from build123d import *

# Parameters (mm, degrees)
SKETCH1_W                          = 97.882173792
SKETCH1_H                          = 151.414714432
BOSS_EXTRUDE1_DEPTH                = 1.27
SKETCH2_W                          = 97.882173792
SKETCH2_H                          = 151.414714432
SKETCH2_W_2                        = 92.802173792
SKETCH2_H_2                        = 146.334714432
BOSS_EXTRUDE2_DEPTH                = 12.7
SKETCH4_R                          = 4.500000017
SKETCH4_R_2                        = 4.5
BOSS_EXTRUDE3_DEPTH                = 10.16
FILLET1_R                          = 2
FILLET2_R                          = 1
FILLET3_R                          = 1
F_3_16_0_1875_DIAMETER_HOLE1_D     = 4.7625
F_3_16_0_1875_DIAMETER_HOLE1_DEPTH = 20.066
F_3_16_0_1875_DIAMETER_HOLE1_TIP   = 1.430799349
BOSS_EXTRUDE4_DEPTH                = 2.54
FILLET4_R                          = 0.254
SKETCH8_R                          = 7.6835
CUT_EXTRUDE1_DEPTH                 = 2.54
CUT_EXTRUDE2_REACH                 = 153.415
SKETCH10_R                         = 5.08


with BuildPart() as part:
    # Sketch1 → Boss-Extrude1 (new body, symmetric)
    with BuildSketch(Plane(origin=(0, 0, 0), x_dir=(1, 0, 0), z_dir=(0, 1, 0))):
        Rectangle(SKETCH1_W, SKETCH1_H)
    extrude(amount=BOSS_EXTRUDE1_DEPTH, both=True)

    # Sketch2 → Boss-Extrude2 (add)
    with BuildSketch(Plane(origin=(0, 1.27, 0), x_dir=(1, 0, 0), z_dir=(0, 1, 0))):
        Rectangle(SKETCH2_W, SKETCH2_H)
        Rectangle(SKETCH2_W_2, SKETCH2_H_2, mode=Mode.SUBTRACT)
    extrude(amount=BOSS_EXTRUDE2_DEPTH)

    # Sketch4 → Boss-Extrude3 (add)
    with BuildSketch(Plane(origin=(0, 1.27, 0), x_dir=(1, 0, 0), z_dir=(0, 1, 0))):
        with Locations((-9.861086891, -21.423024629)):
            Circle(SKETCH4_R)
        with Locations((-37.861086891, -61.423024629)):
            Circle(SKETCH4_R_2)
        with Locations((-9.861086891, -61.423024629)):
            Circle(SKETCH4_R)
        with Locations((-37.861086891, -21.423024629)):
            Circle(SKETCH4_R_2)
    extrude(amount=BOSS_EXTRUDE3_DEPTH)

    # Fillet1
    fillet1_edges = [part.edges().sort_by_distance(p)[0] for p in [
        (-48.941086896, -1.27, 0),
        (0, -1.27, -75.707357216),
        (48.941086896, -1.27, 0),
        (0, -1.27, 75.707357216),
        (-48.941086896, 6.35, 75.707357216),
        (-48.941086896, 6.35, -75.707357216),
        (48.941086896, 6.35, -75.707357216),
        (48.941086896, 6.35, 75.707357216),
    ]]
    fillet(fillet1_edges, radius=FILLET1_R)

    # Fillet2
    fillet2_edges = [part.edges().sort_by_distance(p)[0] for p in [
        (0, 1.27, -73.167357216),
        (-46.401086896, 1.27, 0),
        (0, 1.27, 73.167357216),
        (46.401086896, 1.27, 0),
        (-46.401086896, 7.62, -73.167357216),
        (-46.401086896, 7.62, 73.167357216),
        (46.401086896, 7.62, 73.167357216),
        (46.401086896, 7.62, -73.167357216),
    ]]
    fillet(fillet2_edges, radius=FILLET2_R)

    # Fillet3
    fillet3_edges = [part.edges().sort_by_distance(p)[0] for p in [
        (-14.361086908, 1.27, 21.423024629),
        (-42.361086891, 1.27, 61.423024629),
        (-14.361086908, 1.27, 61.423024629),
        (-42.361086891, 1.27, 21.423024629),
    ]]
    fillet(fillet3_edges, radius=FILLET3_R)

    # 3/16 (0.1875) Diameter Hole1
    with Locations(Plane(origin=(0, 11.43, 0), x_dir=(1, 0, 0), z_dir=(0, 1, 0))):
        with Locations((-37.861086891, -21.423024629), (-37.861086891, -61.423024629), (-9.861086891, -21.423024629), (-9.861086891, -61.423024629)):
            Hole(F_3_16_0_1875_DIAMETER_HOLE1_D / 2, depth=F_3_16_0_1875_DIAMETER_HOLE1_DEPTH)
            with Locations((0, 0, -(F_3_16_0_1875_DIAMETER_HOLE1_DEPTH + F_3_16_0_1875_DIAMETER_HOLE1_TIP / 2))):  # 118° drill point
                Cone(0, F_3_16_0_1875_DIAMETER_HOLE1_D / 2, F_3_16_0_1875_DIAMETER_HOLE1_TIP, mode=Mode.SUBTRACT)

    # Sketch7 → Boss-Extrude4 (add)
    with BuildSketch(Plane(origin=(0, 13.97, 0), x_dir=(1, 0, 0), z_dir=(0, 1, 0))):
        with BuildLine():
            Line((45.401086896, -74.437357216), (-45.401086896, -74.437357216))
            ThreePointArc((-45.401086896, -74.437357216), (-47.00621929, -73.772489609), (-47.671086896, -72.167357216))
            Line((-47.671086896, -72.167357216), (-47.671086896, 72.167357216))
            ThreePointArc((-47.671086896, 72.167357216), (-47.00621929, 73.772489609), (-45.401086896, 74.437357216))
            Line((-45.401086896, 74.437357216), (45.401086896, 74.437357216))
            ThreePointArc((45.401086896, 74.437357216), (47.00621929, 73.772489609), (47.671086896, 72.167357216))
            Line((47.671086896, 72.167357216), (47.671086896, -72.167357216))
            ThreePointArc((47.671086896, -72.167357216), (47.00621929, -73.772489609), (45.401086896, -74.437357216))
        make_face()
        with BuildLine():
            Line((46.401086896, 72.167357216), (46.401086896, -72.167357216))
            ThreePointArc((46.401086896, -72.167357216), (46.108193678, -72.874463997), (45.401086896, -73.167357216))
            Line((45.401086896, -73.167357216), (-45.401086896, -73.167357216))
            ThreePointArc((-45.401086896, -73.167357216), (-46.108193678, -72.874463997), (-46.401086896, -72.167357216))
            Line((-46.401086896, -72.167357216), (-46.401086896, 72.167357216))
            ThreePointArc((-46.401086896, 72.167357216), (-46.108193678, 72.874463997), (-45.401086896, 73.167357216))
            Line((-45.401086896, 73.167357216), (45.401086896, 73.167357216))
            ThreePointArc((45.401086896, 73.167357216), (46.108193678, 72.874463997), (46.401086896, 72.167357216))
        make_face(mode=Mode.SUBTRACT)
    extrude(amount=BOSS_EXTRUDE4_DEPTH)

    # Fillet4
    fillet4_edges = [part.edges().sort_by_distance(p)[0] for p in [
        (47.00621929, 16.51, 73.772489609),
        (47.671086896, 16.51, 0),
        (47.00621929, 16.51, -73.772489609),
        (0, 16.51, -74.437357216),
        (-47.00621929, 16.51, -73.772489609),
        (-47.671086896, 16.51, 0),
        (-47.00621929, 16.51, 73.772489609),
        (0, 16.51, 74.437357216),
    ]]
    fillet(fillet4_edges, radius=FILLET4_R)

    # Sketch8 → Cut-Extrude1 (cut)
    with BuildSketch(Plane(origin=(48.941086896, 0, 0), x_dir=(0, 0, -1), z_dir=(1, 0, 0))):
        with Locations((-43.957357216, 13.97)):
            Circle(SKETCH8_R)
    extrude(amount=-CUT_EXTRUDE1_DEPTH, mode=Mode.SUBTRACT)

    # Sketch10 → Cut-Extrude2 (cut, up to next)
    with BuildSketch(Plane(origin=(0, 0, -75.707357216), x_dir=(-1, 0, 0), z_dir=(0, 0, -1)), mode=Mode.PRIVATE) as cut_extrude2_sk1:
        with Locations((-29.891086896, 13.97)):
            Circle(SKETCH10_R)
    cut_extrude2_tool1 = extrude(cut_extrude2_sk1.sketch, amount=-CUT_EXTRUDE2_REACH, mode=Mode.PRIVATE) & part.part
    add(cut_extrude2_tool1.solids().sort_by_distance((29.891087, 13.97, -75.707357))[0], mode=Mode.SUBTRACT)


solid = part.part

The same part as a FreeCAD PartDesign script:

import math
import FreeCAD as App
import Part
import Sketcher
from FreeCAD import Vector
Q = App.Units.Quantity


def edges_at(feature, points):
    """Names of the edges that pass closest to the given points."""
    edges = feature.Shape.Edges
    near = lambda p: min(range(len(edges)), key=lambda i: edges[i].distToShape(Part.Vertex(*p))[0])
    return sorted({f"Edge{near(p) + 1}" for p in points})


def add_polygon(sketch, points):
    """Adds a closed chain of lines whose ends are joined by coincident constraints."""
    first, n = sketch.GeometryCount, len(points)
    for a, b in zip(points, points[1:] + points[:1]):
        sketch.addGeometry(Part.LineSegment(App.Vector(*a, 0), App.Vector(*b, 0)), False)
    for i in range(n):
        sketch.addConstraint(Sketcher.Constraint("Coincident", first + i, 2, first + (i + 1) % n, 1))

doc = App.newDocument("Part")
body = doc.addObject("PartDesign::Body", "Body")

# Sketch on XZ plane
sketch1 = body.newObject("Sketcher::SketchObject", "Sketch")
sketch1.AttachmentSupport = (doc.getObject("XZ_Plane"), [""])
sketch1.MapMode = "FlatFace"
add_polygon(sketch1, [(-48.941087, -75.707357), (-48.941087, 75.707357), (48.941087, 75.707357), (48.941087, -75.707357)])  # lines 0-3
sketch1.addConstraint(Sketcher.Constraint("Vertical", 0))
sketch1.addConstraint(Sketcher.Constraint("Horizontal", 1))
sketch1.addConstraint(Sketcher.Constraint("Vertical", 2))
sketch1.addConstraint(Sketcher.Constraint("Horizontal", 3))
sketch1.addConstraint(Sketcher.Constraint("Symmetric", 0, 2, 2, 2, -1, 1))
sketch1.addConstraint(Sketcher.Constraint("DistanceX", 1, 1, 1, 2, 97.882174))
sketch1.addConstraint(Sketcher.Constraint("DistanceY", 0, 1, 0, 2, 151.414714))
pad1 = body.newObject("PartDesign::Pad", "Pad")
pad1.Profile = sketch1
pad1.Length = Q("0.1 in")
pad1.Midplane = True

# Sketch on XZ plane
sketch2 = body.newObject("Sketcher::SketchObject", "Sketch001")
sketch2.AttachmentSupport = (doc.getObject("XZ_Plane"), [""])
sketch2.MapMode = "FlatFace"
sketch2.AttachmentOffset = App.Placement(Vector(0, 0, -0.05 * 25.4), App.Rotation())
add_polygon(sketch2, [(-48.941087, -75.707357), (-48.941087, 75.707357), (48.941087, 75.707357), (48.941087, -75.707357)])  # lines 0-3
add_polygon(sketch2, [(46.401087, 73.167357), (-46.401087, 73.167357), (-46.401087, -73.167357), (46.401087, -73.167357)])  # lines 4-7
sketch2.addConstraint(Sketcher.Constraint("Vertical", 0))
sketch2.addConstraint(Sketcher.Constraint("Horizontal", 1))
sketch2.addConstraint(Sketcher.Constraint("Vertical", 2))
sketch2.addConstraint(Sketcher.Constraint("Horizontal", 3))
sketch2.addConstraint(Sketcher.Constraint("Horizontal", 4))
sketch2.addConstraint(Sketcher.Constraint("Vertical", 5))
sketch2.addConstraint(Sketcher.Constraint("Horizontal", 6))
sketch2.addConstraint(Sketcher.Constraint("Vertical", 7))
sketch2.addConstraint(Sketcher.Constraint("Symmetric", 0, 2, 2, 2, -1, 1))
sketch2.addConstraint(Sketcher.Constraint("Symmetric", 4, 2, 6, 2, -1, 1))
sketch2.addConstraint(Sketcher.Constraint("DistanceX", 0, 2, 4, 2, Q("0.1 in")))
sketch2.addConstraint(Sketcher.Constraint("DistanceY", 4, 2, 0, 2, Q("0.1 in")))
sketch2.addConstraint(Sketcher.Constraint("DistanceX", 1, 1, 1, 2, 97.882174))
sketch2.addConstraint(Sketcher.Constraint("DistanceY", 0, 1, 0, 2, 151.414714))
pad2 = body.newObject("PartDesign::Pad", "Pad001")
pad2.Profile = sketch2
pad2.Length = Q("0.5 in")
pad2.Reversed = True

# Sketch on XZ plane
sketch3 = body.newObject("Sketcher::SketchObject", "Sketch002")
sketch3.AttachmentSupport = (doc.getObject("XZ_Plane"), [""])
sketch3.MapMode = "FlatFace"
sketch3.AttachmentOffset = App.Placement(Vector(0, 0, -0.05 * 25.4), App.Rotation())
sketch3.addGeometry(Part.Circle(Vector(-9.861087, 21.423025, 0), Vector(0, 0, 1), 4.5), False)
sketch3.addGeometry(Part.Circle(Vector(-37.861087, 61.423025, 0), Vector(0, 0, 1), 4.5), False)
sketch3.addGeometry(Part.Circle(Vector(-9.861087, 61.423025, 0), Vector(0, 0, 1), 4.5), False)
sketch3.addGeometry(Part.Circle(Vector(-37.861087, 21.423025, 0), Vector(0, 0, 1), 4.5), False)
sketch3.addConstraint(Sketcher.Constraint("Equal", 0, 1))
sketch3.addConstraint(Sketcher.Constraint("Equal", 1, 2))
sketch3.addConstraint(Sketcher.Constraint("Equal", 2, 3))
sketch3.addConstraint(Sketcher.Constraint("Horizontal", 1, 3, 2, 3))
sketch3.addConstraint(Sketcher.Constraint("Horizontal", 0, 3, 3, 3))
sketch3.addConstraint(Sketcher.Constraint("Vertical", 0, 3, 2, 3))
sketch3.addConstraint(Sketcher.Constraint("Vertical", 1, 3, 3, 3))
sketch3.addConstraint(Sketcher.Constraint("Diameter", 0, 9.0))
sketch3.addConstraint(Sketcher.Constraint("DistanceX", 1, 3, 0, 3, 28.0))
sketch3.addConstraint(Sketcher.Constraint("DistanceY", 0, 3, 1, 3, 40.0))
sketch3.addConstraint(Sketcher.Constraint("DistanceX", 0, 3, -1, 1, 9.861087))
sketch3.addConstraint(Sketcher.Constraint("DistanceY", -1, 1, 0, 3, 21.423025))
pad3 = body.newObject("PartDesign::Pad", "Pad002")
pad3.Profile = sketch3
pad3.Length = Q("0.4 in")
pad3.Reversed = True
doc.recompute()

fillet = body.newObject("PartDesign::Fillet", "Fillet")
fillet.Base = (pad3, edges_at(pad3, [
    (-48.941, -1.27, 0),
    (0, -1.27, -75.707),
    (48.941, -1.27, 0),
    (0, -1.27, 75.707),
    (-48.941, 6.35, 75.707),
    (-48.941, 6.35, -75.707),
    (48.941, 6.35, -75.707),
    (48.941, 6.35, 75.707),
]))
fillet.Radius = 2
doc.recompute()

fillet2 = body.newObject("PartDesign::Fillet", "Fillet001")
fillet2.Base = (fillet, edges_at(fillet, [
    (0, 1.27, -73.167),
    (-46.401, 1.27, 0),
    (0, 1.27, 73.167),
    (46.401, 1.27, 0),
    (-46.401, 7.62, -73.167),
    (-46.401, 7.62, 73.167),
    (46.401, 7.62, 73.167),
    (46.401, 7.62, -73.167),
]))
fillet2.Radius = 1
doc.recompute()

fillet3 = body.newObject("PartDesign::Fillet", "Fillet002")
fillet3.Base = (fillet2, edges_at(fillet2, [
    (-14.361, 1.27, 21.423),
    (-42.361, 1.27, 61.423),
    (-14.361, 1.27, 61.423),
    (-42.361, 1.27, 21.423),
]))
fillet3.Radius = 1

# Sketch on XZ plane
sketch4 = body.newObject("Sketcher::SketchObject", "Sketch003")
sketch4.AttachmentSupport = (doc.getObject("XZ_Plane"), [""])
sketch4.MapMode = "FlatFace"
sketch4.AttachmentOffset = App.Placement(Vector(0, 0, -0.45 * 25.4), App.Rotation())
sketch4.addGeometry(Part.Circle(Vector(-37.861087, 21.423025, 0), Vector(0, 0, 1), 2.38125), False)
sketch4.addGeometry(Part.Circle(Vector(-37.861087, 61.423025, 0), Vector(0, 0, 1), 2.38125), False)
sketch4.addGeometry(Part.Circle(Vector(-9.861087, 21.423025, 0), Vector(0, 0, 1), 2.38125), False)
sketch4.addGeometry(Part.Circle(Vector(-9.861087, 61.423025, 0), Vector(0, 0, 1), 2.38125), False)
sketch4.addConstraint(Sketcher.Constraint("Equal", 0, 1))
sketch4.addConstraint(Sketcher.Constraint("Equal", 1, 2))
sketch4.addConstraint(Sketcher.Constraint("Equal", 2, 3))
sketch4.addConstraint(Sketcher.Constraint("Horizontal", 0, 3, 2, 3))
sketch4.addConstraint(Sketcher.Constraint("Horizontal", 1, 3, 3, 3))
sketch4.addConstraint(Sketcher.Constraint("Vertical", 0, 3, 1, 3))
sketch4.addConstraint(Sketcher.Constraint("Vertical", 2, 3, 3, 3))
sketch4.addConstraint(Sketcher.Constraint("Diameter", 0, Q("0.1875 in")))
sketch4.addConstraint(Sketcher.Constraint("DistanceY", 0, 3, 1, 3, 40.0))
sketch4.addConstraint(Sketcher.Constraint("DistanceX", 0, 3, 2, 3, 28.0))
sketch4.addConstraint(Sketcher.Constraint("DistanceX", 0, 3, -1, 1, 37.861087))
sketch4.addConstraint(Sketcher.Constraint("DistanceY", -1, 1, 0, 3, 21.423025))
doc.recompute()
hole = body.newObject("PartDesign::Hole", "Hole")
hole.Profile = sketch4
hole.ThreadType = "None"
hole.Diameter = Q("0.1875 in")
hole.DepthType = "Dimension"
hole.Depth = Q("0.79 in")
hole.DrillPoint = "Angled"
hole.DrillPointAngle = 118
hole.Reversed = True

# Sketch on XZ plane
sketch5 = body.newObject("Sketcher::SketchObject", "Sketch004")
sketch5.AttachmentSupport = (doc.getObject("XZ_Plane"), [""])
sketch5.MapMode = "FlatFace"
sketch5.AttachmentOffset = App.Placement(Vector(0, 0, -0.55 * 25.4), App.Rotation())
sketch5.addGeometry(Part.LineSegment(Vector(-45.401087, 74.437357, 0), Vector(45.401087, 74.437357, 0)), False)
sketch5.addGeometry(Part.ArcOfCircle(Part.Circle(Vector(45.401087, 72.167357, 0), Vector(0, 0, 1), 2.27), math.radians(0), math.radians(90)), False)
sketch5.addGeometry(Part.LineSegment(Vector(47.671087, 72.167357, 0), Vector(47.671087, -72.167357, 0)), False)
sketch5.addGeometry(Part.ArcOfCircle(Part.Circle(Vector(45.401087, -72.167357, 0), Vector(0, 0, 1), 2.27), math.radians(-90), math.radians(0)), False)
sketch5.addGeometry(Part.LineSegment(Vector(45.401087, -74.437357, 0), Vector(-45.401087, -74.437357, 0)), False)
sketch5.addGeometry(Part.ArcOfCircle(Part.Circle(Vector(-45.401087, -72.167357, 0), Vector(0, 0, 1), 2.27), math.radians(180), math.radians(270)), False)
sketch5.addGeometry(Part.LineSegment(Vector(-47.671087, -72.167357, 0), Vector(-47.671087, 72.167357, 0)), False)
sketch5.addGeometry(Part.ArcOfCircle(Part.Circle(Vector(-45.401087, 72.167357, 0), Vector(0, 0, 1), 2.27), math.radians(90), math.radians(180)), False)
sketch5.addGeometry(Part.LineSegment(Vector(46.401087, -72.167357, 0), Vector(46.401087, 72.167357, 0)), False)
sketch5.addGeometry(Part.ArcOfCircle(Part.Circle(Vector(45.401087, 72.167357, 0), Vector(0, 0, 1), 1), math.radians(0), math.radians(90)), False)
sketch5.addGeometry(Part.LineSegment(Vector(45.401087, 73.167357, 0), Vector(-45.401087, 73.167357, 0)), False)
sketch5.addGeometry(Part.ArcOfCircle(Part.Circle(Vector(-45.401087, 72.167357, 0), Vector(0, 0, 1), 1), math.radians(90), math.radians(180)), False)
sketch5.addGeometry(Part.LineSegment(Vector(-46.401087, 72.167357, 0), Vector(-46.401087, -72.167357, 0)), False)
sketch5.addGeometry(Part.ArcOfCircle(Part.Circle(Vector(-45.401087, -72.167357, 0), Vector(0, 0, 1), 1), math.radians(180), math.radians(270)), False)
sketch5.addGeometry(Part.LineSegment(Vector(-45.401087, -73.167357, 0), Vector(45.401087, -73.167357, 0)), False)
sketch5.addGeometry(Part.ArcOfCircle(Part.Circle(Vector(45.401087, -72.167357, 0), Vector(0, 0, 1), 1), math.radians(-90), math.radians(0)), False)
sketch5.addConstraint(Sketcher.Constraint("Tangent", 0, 2, 1, 2))
sketch5.addConstraint(Sketcher.Constraint("Tangent", 1, 1, 2, 1))
sketch5.addConstraint(Sketcher.Constraint("Tangent", 2, 2, 3, 2))
sketch5.addConstraint(Sketcher.Constraint("Tangent", 3, 1, 4, 1))
sketch5.addConstraint(Sketcher.Constraint("Tangent", 4, 2, 5, 2))
sketch5.addConstraint(Sketcher.Constraint("Tangent", 5, 1, 6, 1))
sketch5.addConstraint(Sketcher.Constraint("Tangent", 6, 2, 7, 2))
sketch5.addConstraint(Sketcher.Constraint("Tangent", 7, 1, 0, 1))
sketch5.addConstraint(Sketcher.Constraint("Tangent", 8, 2, 9, 1))
sketch5.addConstraint(Sketcher.Constraint("Tangent", 9, 2, 10, 1))
sketch5.addConstraint(Sketcher.Constraint("Tangent", 10, 2, 11, 1))
sketch5.addConstraint(Sketcher.Constraint("Tangent", 11, 2, 12, 1))
sketch5.addConstraint(Sketcher.Constraint("Tangent", 12, 2, 13, 1))
sketch5.addConstraint(Sketcher.Constraint("Tangent", 13, 2, 14, 1))
sketch5.addConstraint(Sketcher.Constraint("Tangent", 14, 2, 15, 1))
sketch5.addConstraint(Sketcher.Constraint("Tangent", 15, 2, 8, 1))
sketch5.addConstraint(Sketcher.Constraint("Horizontal", 0))
sketch5.addConstraint(Sketcher.Constraint("Vertical", 2))
sketch5.addConstraint(Sketcher.Constraint("Horizontal", 4))
sketch5.addConstraint(Sketcher.Constraint("Vertical", 6))
sketch5.addConstraint(Sketcher.Constraint("Vertical", 8))
sketch5.addConstraint(Sketcher.Constraint("Horizontal", 10))
sketch5.addConstraint(Sketcher.Constraint("Vertical", 12))
sketch5.addConstraint(Sketcher.Constraint("Horizontal", 14))
sketch5.addConstraint(Sketcher.Constraint("Coincident", 9, 3, 1, 3))
sketch5.addConstraint(Sketcher.Constraint("Coincident", 11, 3, 7, 3))
sketch5.addConstraint(Sketcher.Constraint("Coincident", 13, 3, 5, 3))
sketch5.addConstraint(Sketcher.Constraint("Equal", 1, 3))
sketch5.addConstraint(Sketcher.Constraint("Equal", 3, 5))
sketch5.addConstraint(Sketcher.Constraint("Equal", 5, 7))
sketch5.addConstraint(Sketcher.Constraint("Equal", 13, 15))
sketch5.addConstraint(Sketcher.Constraint("Symmetric", 1, 3, 5, 3, -1, 1))
sketch5.addConstraint(Sketcher.Constraint("Radius", 1, 2.27))
sketch5.addConstraint(Sketcher.Constraint("Radius", 9, 1.0))
sketch5.addConstraint(Sketcher.Constraint("DistanceX", 0, 1, 0, 2, 90.802174))
sketch5.addConstraint(Sketcher.Constraint("DistanceY", 2, 2, 2, 1, 144.334714))
pad4 = body.newObject("PartDesign::Pad", "Pad003")
pad4.Profile = sketch5
pad4.Length = Q("0.1 in")
pad4.Reversed = True
doc.recompute()

fillet4 = body.newObject("PartDesign::Fillet", "Fillet003")
fillet4.Base = (pad4, edges_at(pad4, [
    (47.006, 16.51, 73.772),
    (47.671, 16.51, 0),
    (47.006, 16.51, -73.772),
    (0, 16.51, -74.437),
    (-47.006, 16.51, -73.772),
    (-47.671, 16.51, 0),
    (-47.006, 16.51, 73.772),
    (0, 16.51, 74.437),
]))
fillet4.Radius = Q("0.01 in")

# Sketch on YZ plane
sketch6 = body.newObject("Sketcher::SketchObject", "Sketch005")
sketch6.AttachmentSupport = (doc.getObject("YZ_Plane"), [""])
sketch6.MapMode = "FlatFace"
sketch6.AttachmentOffset = App.Placement(Vector(0, 0, 48.941087), App.Rotation())
sketch6.addGeometry(Part.Circle(Vector(13.97, 43.957357, 0), Vector(0, 0, 1), 7.6835), False)
sketch6.addConstraint(Sketcher.Constraint("Diameter", 0, Q("0.605 in")))
sketch6.addConstraint(Sketcher.Constraint("DistanceX", -1, 1, 0, 3, Q("0.55 in")))
sketch6.addConstraint(Sketcher.Constraint("DistanceY", -1, 1, 0, 3, 43.957357))
pocket1 = body.newObject("PartDesign::Pocket", "Pocket")
pocket1.Profile = sketch6
pocket1.Length = Q("0.1 in")

# Sketch on XY plane
sketch7 = body.newObject("Sketcher::SketchObject", "Sketch006")
sketch7.AttachmentSupport = (doc.getObject("XY_Plane"), [""])
sketch7.MapMode = "FlatFace"
sketch7.AttachmentOffset = App.Placement(Vector(0, 0, -75.707357), App.Rotation())
sketch7.addGeometry(Part.Circle(Vector(29.891087, 13.97, 0), Vector(0, 0, 1), 5.08), False)
sketch7.addConstraint(Sketcher.Constraint("Diameter", 0, Q("0.4 in")))
sketch7.addConstraint(Sketcher.Constraint("DistanceY", -1, 1, 0, 3, Q("0.55 in")))
sketch7.addConstraint(Sketcher.Constraint("DistanceX", -1, 1, 0, 3, 29.891087))
pocket2 = body.newObject("PartDesign::Pocket", "Pocket001")
pocket2.Profile = sketch7
pocket2.Length = Q("0.1 in")
pocket2.Reversed = True

doc.recompute()
